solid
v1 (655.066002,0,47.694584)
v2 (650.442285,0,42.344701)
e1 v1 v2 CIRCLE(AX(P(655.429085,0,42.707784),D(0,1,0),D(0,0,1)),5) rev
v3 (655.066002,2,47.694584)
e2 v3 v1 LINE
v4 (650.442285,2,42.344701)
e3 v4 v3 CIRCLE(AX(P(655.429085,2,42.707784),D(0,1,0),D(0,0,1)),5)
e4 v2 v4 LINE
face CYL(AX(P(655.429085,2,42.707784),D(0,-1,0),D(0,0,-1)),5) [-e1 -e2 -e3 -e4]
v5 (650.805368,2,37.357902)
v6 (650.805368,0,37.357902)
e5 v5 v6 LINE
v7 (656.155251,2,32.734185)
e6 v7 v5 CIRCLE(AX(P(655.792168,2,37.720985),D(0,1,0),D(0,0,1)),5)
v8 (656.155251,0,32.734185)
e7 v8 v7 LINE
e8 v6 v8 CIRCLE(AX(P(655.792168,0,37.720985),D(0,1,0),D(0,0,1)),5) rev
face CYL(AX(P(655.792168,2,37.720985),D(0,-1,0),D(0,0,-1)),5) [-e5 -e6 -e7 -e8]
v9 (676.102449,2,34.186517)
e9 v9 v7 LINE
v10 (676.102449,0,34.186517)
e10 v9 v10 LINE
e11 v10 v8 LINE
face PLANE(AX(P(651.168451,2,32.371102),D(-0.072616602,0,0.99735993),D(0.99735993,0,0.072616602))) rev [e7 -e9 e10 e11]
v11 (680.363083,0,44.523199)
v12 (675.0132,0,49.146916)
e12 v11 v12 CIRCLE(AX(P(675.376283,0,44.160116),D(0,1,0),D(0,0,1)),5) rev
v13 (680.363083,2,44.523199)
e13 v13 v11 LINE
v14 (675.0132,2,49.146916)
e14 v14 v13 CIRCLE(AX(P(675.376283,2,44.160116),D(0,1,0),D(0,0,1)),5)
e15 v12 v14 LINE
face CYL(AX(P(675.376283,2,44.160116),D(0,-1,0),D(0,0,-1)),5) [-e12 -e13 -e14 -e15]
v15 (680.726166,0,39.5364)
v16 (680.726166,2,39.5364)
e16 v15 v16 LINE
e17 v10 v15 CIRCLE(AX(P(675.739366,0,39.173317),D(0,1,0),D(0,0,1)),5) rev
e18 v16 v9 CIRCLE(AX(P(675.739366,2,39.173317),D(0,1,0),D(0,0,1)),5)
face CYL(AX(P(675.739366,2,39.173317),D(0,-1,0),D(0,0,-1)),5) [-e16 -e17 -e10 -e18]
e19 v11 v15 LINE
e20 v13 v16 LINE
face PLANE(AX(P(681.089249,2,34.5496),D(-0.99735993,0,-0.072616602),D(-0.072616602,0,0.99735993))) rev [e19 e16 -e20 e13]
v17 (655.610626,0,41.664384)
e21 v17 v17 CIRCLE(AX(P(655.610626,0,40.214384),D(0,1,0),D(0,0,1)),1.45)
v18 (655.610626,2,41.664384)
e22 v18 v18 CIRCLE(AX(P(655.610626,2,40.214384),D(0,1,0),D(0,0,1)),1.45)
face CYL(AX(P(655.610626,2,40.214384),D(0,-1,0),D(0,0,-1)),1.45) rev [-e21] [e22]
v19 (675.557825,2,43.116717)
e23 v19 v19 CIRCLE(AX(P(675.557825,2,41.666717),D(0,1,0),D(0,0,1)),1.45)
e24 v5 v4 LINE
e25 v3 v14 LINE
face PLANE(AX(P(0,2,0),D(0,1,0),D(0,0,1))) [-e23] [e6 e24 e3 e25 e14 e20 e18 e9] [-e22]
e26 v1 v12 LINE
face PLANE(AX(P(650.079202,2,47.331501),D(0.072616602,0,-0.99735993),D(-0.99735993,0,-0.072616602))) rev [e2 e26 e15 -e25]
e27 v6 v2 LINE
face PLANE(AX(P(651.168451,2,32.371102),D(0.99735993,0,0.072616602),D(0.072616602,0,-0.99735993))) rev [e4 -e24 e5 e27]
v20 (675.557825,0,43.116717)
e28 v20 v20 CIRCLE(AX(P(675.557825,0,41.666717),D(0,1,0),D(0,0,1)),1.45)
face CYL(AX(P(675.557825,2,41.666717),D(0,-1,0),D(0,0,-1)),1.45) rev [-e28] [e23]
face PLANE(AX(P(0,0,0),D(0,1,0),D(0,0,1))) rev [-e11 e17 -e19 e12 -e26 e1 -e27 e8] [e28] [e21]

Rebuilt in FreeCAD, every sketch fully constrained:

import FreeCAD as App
import Part
import Sketcher

V = App.Vector
Q = App.Units.Quantity


def edges_at(feature, points):
    """Names of the edges that pass closest to the given points."""
    edges = feature.Shape.Edges
    near = lambda p: min(range(len(edges)), key=lambda i: edges[i].distToShape(Part.Vertex(*p))[0])
    return sorted({f"Edge{near(p) + 1}" for p in points})


def add_polygon(sketch, points):
    """Adds a closed chain of lines whose ends are joined by coincident constraints."""
    first, n = sketch.GeometryCount, len(points)
    for a, b in zip(points, points[1:] + points[:1]):
        sketch.addGeometry(Part.LineSegment(App.Vector(*a, 0), App.Vector(*b, 0)), False)
    for i in range(n):
        sketch.addConstraint(Sketcher.Constraint("Coincident", first + i, 2, first + (i + 1) % n, 1))

doc = App.newDocument("Part")
body = doc.addObject("PartDesign::Body", "Body")

sketch1 = body.newObject("Sketcher::SketchObject", "Sketch")
sketch1.AttachmentSupport = (doc.getObject("XZ_Plane"), [""])
sketch1.MapMode = "FlatFace"
add_polygon(sketch1, [(651.2, 32.4), (650.1, 47.3), (680, 49.5), (681.1, 34.5)])
sketch1.addGeometry(Part.Circle(V(675.6, 41.7, 0), V(0, 0, 1), 1.4), False)
sketch1.addGeometry(Part.Circle(V(655.6, 40.2, 0), V(0, 0, 1), 1.4), False)
sketch1.addConstraint([
    Sketcher.Constraint("Equal", 4, 5),
    Sketcher.Constraint("Perpendicular", 0, 1),
    Sketcher.Constraint("Perpendicular", 1, 2),
    Sketcher.Constraint("Perpendicular", 2, 3),
    Sketcher.Constraint("Diameter", 4, Q("2.9 mm")),
    Sketcher.Constraint("Distance", 0, Q("15 mm")),
    Sketcher.Constraint("Distance", 1, Q("30 mm")),
    Sketcher.Constraint("DistanceX", -1, 1, 1, 2, Q("680 mm")),
    Sketcher.Constraint("DistanceY", -1, 1, 1, 2, Q("49.509999 mm")),
    Sketcher.Constraint("DistanceY", -1, 1, 0, 2, Q("47.331501 mm")),
    Sketcher.Constraint("DistanceX", 5, 3, 4, 3, Q("19.947199 mm")),
    Sketcher.Constraint("DistanceX", -1, 1, 4, 3, Q("675.557825 mm")),
    Sketcher.Constraint("DistanceY", -1, 1, 4, 3, Q("41.666717 mm")),
    Sketcher.Constraint("DistanceY", -1, 1, 5, 3, Q("40.214384 mm")),
])
pad1 = body.newObject("PartDesign::Pad", "Pad")
pad1.Profile = sketch1
pad1.Length = 2
pad1.Reversed = True
doc.recompute()

fillet = body.newObject("PartDesign::Fillet", "Fillet")
fillet.Base = (pad1, edges_at(pad1, [
    (680, 1, 49.51),
    (650.079, 1, 47.332),
    (651.168, 1, 32.371),
    (681.089, 1, 34.55),
]))
fillet.Radius = 5

doc.recompute()
